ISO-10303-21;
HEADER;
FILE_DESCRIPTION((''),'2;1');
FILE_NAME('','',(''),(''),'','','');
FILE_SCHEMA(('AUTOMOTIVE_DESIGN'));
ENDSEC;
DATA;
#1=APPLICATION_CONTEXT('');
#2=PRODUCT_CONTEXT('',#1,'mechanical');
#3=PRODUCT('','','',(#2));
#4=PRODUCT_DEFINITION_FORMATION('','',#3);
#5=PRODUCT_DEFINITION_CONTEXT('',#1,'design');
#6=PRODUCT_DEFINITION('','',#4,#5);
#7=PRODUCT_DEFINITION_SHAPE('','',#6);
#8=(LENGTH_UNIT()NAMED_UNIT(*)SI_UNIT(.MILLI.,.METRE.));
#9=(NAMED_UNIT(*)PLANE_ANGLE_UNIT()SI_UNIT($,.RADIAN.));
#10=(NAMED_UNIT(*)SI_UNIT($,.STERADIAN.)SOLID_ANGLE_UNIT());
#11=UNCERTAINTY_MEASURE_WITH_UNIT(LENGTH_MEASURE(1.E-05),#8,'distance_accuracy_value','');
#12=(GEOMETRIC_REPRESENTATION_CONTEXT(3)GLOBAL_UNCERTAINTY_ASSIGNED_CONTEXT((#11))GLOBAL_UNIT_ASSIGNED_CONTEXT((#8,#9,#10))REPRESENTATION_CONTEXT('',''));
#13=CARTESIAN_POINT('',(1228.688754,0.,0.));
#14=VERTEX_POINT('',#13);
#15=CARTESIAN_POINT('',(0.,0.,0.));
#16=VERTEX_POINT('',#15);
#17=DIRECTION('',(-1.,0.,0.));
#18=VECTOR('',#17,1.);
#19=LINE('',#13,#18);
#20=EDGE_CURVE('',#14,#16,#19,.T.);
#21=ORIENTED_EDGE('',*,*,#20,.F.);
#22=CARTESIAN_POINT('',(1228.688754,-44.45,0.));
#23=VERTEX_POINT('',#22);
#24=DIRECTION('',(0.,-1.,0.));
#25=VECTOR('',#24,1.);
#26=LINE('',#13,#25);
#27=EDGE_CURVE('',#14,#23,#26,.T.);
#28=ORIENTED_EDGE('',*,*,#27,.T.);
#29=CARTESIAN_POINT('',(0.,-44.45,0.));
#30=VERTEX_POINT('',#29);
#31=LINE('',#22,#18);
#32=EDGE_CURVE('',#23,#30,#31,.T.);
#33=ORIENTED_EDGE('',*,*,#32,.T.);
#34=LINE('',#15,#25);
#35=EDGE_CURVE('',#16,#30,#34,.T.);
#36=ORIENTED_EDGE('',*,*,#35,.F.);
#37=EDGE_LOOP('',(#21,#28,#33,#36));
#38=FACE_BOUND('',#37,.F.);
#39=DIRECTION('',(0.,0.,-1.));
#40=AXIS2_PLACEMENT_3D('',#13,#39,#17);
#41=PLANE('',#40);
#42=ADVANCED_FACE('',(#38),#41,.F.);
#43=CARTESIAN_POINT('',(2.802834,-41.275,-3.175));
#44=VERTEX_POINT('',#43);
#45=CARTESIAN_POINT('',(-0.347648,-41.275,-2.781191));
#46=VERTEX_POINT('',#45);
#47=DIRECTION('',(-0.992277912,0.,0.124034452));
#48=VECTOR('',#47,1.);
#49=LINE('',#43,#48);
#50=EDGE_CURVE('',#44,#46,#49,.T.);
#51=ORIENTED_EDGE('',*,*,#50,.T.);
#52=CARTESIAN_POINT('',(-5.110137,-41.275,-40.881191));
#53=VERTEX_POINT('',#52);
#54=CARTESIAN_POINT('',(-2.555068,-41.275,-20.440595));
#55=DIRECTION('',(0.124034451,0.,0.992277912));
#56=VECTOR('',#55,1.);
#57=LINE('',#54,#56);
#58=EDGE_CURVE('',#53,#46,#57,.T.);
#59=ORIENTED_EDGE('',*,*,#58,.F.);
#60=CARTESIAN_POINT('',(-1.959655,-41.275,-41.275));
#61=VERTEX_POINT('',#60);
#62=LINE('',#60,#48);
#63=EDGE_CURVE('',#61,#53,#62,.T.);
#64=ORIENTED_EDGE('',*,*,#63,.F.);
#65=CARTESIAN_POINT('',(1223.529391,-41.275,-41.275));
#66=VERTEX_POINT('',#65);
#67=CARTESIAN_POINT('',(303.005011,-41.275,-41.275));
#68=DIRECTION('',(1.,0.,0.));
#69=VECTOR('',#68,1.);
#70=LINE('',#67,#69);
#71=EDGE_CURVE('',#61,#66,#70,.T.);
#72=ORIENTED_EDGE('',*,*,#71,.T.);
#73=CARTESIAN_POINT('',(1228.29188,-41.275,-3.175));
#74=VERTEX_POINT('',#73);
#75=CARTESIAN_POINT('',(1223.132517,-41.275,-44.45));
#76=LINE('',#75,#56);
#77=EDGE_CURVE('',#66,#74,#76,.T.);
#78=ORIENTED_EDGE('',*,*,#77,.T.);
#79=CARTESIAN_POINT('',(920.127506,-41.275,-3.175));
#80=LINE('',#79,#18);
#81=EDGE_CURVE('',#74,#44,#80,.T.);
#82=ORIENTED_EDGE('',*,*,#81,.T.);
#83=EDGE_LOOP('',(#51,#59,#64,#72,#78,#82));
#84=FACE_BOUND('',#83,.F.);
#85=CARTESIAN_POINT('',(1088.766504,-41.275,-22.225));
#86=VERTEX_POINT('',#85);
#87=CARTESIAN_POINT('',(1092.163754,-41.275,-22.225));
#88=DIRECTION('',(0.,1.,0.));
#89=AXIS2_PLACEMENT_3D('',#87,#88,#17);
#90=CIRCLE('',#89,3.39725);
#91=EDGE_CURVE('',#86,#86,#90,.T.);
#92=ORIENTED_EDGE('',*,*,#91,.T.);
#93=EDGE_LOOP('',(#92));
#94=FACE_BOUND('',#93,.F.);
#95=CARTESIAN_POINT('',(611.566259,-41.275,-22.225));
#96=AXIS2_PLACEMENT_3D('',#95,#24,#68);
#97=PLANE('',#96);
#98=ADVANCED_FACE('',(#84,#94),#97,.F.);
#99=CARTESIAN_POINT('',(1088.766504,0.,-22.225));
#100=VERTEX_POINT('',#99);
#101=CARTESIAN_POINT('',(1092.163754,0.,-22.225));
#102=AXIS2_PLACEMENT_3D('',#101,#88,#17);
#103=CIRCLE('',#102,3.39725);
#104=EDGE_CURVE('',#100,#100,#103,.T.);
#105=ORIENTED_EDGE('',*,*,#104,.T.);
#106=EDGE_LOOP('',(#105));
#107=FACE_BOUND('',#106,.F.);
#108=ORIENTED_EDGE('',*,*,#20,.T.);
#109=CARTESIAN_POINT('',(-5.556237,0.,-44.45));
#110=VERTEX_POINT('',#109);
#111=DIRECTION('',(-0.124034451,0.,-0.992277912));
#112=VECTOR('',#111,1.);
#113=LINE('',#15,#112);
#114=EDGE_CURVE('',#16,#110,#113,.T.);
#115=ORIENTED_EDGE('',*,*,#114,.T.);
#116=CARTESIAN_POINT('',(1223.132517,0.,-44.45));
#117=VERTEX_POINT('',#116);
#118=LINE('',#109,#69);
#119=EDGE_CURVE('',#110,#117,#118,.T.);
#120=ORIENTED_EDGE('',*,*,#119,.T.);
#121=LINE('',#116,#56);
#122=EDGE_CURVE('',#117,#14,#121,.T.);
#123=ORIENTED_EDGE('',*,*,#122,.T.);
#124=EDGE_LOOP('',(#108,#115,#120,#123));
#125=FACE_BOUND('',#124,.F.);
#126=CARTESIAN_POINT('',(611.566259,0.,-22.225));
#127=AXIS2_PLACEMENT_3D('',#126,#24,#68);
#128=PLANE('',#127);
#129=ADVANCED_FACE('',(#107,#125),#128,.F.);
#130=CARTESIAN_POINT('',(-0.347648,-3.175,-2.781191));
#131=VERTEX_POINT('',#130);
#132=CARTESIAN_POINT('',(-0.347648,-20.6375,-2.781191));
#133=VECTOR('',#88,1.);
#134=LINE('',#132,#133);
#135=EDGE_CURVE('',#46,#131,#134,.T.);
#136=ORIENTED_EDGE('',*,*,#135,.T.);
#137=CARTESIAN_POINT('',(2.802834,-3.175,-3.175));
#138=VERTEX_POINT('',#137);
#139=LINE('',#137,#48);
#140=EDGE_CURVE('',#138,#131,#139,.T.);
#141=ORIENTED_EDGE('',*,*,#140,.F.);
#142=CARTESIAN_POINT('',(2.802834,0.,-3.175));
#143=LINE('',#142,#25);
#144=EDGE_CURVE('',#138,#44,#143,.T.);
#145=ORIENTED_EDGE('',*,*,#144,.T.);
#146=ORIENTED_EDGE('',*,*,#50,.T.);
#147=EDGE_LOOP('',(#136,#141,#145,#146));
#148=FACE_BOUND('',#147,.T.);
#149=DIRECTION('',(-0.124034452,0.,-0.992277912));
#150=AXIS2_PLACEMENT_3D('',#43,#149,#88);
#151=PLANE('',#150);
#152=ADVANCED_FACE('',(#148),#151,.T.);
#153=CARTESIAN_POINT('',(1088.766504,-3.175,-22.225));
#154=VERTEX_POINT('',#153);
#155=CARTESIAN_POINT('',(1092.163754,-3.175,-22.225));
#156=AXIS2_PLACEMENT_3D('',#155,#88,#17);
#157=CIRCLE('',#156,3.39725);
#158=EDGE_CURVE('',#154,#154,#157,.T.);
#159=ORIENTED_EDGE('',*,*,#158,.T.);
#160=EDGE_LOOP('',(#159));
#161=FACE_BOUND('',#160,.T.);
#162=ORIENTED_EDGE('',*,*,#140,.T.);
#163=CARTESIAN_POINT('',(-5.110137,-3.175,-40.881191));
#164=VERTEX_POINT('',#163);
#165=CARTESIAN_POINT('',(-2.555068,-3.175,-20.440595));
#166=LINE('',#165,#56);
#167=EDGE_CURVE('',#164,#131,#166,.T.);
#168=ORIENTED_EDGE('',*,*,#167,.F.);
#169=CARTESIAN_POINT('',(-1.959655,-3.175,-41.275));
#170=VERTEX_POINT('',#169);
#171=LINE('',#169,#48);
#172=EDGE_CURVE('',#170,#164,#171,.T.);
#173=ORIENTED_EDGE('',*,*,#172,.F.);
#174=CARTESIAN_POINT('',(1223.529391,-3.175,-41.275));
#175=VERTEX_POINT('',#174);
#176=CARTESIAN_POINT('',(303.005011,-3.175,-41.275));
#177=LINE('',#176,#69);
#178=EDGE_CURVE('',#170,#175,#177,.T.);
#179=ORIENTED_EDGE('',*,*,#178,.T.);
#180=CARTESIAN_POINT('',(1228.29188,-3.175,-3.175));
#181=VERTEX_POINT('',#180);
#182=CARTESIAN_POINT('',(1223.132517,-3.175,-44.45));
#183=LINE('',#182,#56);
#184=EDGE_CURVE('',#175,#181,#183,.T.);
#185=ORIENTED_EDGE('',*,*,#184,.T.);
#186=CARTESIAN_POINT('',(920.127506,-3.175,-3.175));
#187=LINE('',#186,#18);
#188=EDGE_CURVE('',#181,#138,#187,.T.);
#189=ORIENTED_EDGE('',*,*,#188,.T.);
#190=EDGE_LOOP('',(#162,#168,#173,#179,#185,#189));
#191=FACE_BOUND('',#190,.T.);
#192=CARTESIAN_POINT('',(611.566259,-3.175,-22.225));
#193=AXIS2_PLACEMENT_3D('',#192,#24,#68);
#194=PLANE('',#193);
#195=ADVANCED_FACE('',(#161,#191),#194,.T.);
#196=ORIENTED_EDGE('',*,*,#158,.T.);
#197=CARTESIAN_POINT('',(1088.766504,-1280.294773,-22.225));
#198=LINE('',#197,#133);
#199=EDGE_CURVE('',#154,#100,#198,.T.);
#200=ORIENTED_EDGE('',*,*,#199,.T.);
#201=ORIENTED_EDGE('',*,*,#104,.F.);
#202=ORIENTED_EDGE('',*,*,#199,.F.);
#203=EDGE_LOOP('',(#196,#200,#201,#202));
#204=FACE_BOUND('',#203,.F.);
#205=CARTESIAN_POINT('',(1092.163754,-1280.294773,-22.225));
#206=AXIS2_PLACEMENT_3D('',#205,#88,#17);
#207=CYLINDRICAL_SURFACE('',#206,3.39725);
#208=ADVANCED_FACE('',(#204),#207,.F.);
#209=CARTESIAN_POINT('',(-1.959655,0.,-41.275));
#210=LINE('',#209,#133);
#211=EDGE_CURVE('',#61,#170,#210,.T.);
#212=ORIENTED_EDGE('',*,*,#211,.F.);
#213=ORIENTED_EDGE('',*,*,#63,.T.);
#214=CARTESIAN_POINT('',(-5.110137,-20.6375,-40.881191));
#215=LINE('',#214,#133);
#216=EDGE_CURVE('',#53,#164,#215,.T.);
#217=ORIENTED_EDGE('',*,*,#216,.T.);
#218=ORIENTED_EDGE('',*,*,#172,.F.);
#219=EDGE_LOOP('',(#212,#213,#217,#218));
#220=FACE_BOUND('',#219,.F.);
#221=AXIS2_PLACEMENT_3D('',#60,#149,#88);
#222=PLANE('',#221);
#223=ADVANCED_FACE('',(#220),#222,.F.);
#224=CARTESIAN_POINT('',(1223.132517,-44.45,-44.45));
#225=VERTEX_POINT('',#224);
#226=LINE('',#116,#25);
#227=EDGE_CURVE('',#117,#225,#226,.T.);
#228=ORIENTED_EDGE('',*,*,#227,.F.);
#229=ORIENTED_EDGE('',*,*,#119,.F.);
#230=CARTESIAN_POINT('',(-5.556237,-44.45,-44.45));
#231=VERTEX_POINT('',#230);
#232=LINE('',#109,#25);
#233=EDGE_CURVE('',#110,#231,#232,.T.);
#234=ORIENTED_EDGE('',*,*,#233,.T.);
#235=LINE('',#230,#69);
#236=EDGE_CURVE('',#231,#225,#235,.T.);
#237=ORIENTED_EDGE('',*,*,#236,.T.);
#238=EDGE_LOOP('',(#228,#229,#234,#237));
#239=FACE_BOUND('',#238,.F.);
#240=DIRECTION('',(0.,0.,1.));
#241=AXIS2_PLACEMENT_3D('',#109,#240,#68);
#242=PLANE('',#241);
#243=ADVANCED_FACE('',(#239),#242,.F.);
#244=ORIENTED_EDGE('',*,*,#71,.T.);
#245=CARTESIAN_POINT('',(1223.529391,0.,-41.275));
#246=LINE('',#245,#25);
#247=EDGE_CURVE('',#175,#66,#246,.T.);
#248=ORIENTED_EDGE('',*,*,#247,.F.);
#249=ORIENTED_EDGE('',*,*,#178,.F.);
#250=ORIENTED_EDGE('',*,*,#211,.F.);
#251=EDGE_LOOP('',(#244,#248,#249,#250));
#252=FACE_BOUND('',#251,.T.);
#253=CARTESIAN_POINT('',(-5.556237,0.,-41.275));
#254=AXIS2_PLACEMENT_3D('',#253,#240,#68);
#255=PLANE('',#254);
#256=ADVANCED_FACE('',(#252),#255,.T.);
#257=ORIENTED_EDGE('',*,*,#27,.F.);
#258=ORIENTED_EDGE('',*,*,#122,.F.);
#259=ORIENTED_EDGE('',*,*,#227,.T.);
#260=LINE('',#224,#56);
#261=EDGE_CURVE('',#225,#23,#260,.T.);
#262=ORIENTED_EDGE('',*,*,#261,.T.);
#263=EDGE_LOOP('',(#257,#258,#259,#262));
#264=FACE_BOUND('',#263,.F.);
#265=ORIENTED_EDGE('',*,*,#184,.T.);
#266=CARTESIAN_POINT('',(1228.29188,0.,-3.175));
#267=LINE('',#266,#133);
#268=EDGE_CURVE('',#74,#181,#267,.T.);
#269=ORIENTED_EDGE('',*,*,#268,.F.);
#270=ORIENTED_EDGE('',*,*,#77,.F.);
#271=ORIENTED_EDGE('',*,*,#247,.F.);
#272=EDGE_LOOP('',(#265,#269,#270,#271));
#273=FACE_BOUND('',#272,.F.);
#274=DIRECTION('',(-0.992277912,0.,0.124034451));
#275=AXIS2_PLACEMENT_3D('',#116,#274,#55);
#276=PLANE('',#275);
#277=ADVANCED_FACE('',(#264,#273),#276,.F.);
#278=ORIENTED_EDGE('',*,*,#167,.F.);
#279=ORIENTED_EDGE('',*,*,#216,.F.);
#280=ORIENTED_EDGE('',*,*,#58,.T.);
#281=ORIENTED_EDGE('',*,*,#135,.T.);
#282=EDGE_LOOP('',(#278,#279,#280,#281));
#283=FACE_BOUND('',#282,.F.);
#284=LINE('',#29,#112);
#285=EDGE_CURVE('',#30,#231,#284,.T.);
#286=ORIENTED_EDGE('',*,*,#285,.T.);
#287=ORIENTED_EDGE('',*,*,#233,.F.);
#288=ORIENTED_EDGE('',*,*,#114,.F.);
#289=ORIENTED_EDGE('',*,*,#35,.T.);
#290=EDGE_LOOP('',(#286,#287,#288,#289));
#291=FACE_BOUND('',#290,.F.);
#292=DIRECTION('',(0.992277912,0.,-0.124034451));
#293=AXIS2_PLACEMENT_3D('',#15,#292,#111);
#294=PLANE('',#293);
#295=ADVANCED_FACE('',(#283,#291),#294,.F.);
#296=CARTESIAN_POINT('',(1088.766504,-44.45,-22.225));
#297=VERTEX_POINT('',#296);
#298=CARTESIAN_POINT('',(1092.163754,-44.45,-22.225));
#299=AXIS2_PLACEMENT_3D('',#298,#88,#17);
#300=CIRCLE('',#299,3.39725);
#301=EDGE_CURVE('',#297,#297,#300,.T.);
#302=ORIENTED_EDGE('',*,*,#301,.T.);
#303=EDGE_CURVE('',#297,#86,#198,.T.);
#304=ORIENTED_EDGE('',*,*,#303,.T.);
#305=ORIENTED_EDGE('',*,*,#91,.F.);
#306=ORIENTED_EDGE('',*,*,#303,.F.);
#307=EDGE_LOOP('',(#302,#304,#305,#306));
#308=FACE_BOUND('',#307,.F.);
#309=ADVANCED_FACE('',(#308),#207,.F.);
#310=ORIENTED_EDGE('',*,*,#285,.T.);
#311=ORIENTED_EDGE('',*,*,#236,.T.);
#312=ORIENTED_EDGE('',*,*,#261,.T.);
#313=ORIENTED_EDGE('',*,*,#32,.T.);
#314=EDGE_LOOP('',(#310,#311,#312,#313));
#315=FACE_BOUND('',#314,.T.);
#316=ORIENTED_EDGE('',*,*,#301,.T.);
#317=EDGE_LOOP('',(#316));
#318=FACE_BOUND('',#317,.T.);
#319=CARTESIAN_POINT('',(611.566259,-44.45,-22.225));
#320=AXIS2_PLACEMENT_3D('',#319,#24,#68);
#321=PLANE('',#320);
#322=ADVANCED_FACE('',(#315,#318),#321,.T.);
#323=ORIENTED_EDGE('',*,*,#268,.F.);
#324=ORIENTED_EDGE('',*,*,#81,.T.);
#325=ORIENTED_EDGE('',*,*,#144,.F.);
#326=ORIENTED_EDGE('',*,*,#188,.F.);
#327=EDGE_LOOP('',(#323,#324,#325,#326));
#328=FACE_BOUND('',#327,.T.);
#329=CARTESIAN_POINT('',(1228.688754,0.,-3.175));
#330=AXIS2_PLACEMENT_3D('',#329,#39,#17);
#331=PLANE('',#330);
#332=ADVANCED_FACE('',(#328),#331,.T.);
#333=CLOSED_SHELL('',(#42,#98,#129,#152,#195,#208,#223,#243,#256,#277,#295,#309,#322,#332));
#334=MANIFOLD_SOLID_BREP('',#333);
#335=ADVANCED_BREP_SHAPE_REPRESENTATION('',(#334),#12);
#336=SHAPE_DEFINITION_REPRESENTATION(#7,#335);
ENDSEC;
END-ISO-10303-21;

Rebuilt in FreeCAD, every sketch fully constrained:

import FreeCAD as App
import Part
import Sketcher

V = App.Vector
Q = App.Units.Quantity


def faces_at(feature, points):
    """Names of the faces that lie closest to the given points."""
    faces = feature.Shape.Faces
    near = lambda p: min(range(len(faces)), key=lambda i: faces[i].distToShape(Part.Vertex(*p))[0])
    return sorted({f"Face{near(p) + 1}" for p in points})

doc = App.newDocument("Part")
body = doc.addObject("PartDesign::Body", "Body")

# Sketch on XZ plane
sketch1 = doc.addObject("Sketcher::SketchObject", "Sketch")
body.addObject(sketch1)
sketch1.AttachmentSupport = (doc.XZ_Plane, [""])
sketch1.MapMode = "FlatFace"
sketch1.addGeometry([
    Part.LineSegment(V(-6, -44, 0), V(1223, -44, 0)),
    Part.LineSegment(V(1223, -44, 0), V(1229, 0, 0)),
    Part.LineSegment(V(1229, 0, 0), V(0, 0, 0)),
    Part.LineSegment(V(0, 0, 0), V(-6, -44, 0)),
], False)
sketch1.addConstraint([
    Sketcher.Constraint("Coincident", 0, 2, 1, 1),
    Sketcher.Constraint("Coincident", 1, 2, 2, 1),
    Sketcher.Constraint("Coincident", 2, 2, 3, 1),
    Sketcher.Constraint("Coincident", 3, 2, 0, 1),
    Sketcher.Constraint("Horizontal", 0),
    Sketcher.Constraint("Horizontal", 2),
    Sketcher.Constraint("Coincident", 2, 2, -1, 1),
    Sketcher.Constraint("Parallel", 1, 3),
    Sketcher.Constraint("DistanceY", 0, 2, -1, 1, Q("1.75 in")),
    Sketcher.Constraint("Distance", 1, 44.795918),
    Sketcher.Constraint("DistanceX", 0, 1, 0, 2, 1228.688754),
])
pad1 = doc.addObject("PartDesign::Pad", "Pad")
body.addObject(pad1)
pad1.Profile = sketch1
pad1.Length = Q("1.75 in")
doc.recompute()

thickness = doc.addObject("PartDesign::Thickness", "Thickness")
body.addObject(thickness)
thickness.Base = (pad1, faces_at(pad1, [(1225.911, -22.225, -22.225)]))
thickness.Value = Q("0.125 in")
thickness.Reversed = True
thickness.Join = "Arc"

# Sketch on an angled plane
sketch2 = doc.addObject("Sketcher::SketchObject", "Sketch001")
body.addObject(sketch2)
sketch2.Placement = App.Placement(V(3.150482, 0, -0.393809), App.Rotation(V(0, 1, 0), V(0.124034451, 0, 0.992277912), V(0.992277912, 0, -0.124034451), "ZXY"))
sketch2.addGeometry([
    Part.LineSegment(V(-41, -3, 0), V(-41, -41, 0)),
    Part.LineSegment(V(-41, -41, 0), V(-3, -41, 0)),
    Part.LineSegment(V(-3, -41, 0), V(-3, -3, 0)),
    Part.LineSegment(V(-3, -3, 0), V(-41, -3, 0)),
], False)
sketch2.addConstraint([
    Sketcher.Constraint("Coincident", 0, 2, 1, 1),
    Sketcher.Constraint("Coincident", 1, 2, 2, 1),
    Sketcher.Constraint("Coincident", 2, 2, 3, 1),
    Sketcher.Constraint("Coincident", 3, 2, 0, 1),
    Sketcher.Constraint("Vertical", 0),
    Sketcher.Constraint("Horizontal", 1),
    Sketcher.Constraint("Vertical", 2),
    Sketcher.Constraint("Horizontal", 3),
    Sketcher.Constraint("DistanceX", 1, 1, 1, 2, Q("1.5 in")),
    Sketcher.Constraint("DistanceX", 0, 2, -1, 1, Q("1.625 in")),
    Sketcher.Constraint("DistanceY", 0, 2, 0, 1, 38.396501),
    Sketcher.Constraint("DistanceY", 0, 2, -1, 1, 41.199335),
])
pocket1 = doc.addObject("PartDesign::Pocket", "Pocket")
body.addObject(pocket1)
pocket1.Profile = sketch2
pocket1.Type = "ThroughAll"

# Sketch on XZ plane
sketch3 = doc.addObject("Sketcher::SketchObject", "Sketch002")
body.addObject(sketch3)
sketch3.AttachmentSupport = (doc.XZ_Plane, [""])
sketch3.MapMode = "FlatFace"
sketch3.AttachmentOffset = App.Placement(V(0, 0, 1.75 * 25.4), App.Rotation())
sketch3.addGeometry(Part.Circle(V(1092.2, -22.2, 0), V(0, 0, 1), 3.4), False)
sketch3.addConstraint([
    Sketcher.Constraint("Diameter", 0, Q("0.2675 in")),
    Sketcher.Constraint("DistanceY", 0, 3, -1, 1, Q("0.875 in")),
    Sketcher.Constraint("DistanceX", -1, 1, 0, 3, 1092.163754),
])
doc.recompute()
hole = doc.addObject("PartDesign::Hole", "Hole")
body.addObject(hole)
hole.Profile = sketch3
hole.ThreadType = "None"
hole.Diameter = Q("0.2675 in")
hole.DepthType = "ThroughAll"

doc.recompute()
